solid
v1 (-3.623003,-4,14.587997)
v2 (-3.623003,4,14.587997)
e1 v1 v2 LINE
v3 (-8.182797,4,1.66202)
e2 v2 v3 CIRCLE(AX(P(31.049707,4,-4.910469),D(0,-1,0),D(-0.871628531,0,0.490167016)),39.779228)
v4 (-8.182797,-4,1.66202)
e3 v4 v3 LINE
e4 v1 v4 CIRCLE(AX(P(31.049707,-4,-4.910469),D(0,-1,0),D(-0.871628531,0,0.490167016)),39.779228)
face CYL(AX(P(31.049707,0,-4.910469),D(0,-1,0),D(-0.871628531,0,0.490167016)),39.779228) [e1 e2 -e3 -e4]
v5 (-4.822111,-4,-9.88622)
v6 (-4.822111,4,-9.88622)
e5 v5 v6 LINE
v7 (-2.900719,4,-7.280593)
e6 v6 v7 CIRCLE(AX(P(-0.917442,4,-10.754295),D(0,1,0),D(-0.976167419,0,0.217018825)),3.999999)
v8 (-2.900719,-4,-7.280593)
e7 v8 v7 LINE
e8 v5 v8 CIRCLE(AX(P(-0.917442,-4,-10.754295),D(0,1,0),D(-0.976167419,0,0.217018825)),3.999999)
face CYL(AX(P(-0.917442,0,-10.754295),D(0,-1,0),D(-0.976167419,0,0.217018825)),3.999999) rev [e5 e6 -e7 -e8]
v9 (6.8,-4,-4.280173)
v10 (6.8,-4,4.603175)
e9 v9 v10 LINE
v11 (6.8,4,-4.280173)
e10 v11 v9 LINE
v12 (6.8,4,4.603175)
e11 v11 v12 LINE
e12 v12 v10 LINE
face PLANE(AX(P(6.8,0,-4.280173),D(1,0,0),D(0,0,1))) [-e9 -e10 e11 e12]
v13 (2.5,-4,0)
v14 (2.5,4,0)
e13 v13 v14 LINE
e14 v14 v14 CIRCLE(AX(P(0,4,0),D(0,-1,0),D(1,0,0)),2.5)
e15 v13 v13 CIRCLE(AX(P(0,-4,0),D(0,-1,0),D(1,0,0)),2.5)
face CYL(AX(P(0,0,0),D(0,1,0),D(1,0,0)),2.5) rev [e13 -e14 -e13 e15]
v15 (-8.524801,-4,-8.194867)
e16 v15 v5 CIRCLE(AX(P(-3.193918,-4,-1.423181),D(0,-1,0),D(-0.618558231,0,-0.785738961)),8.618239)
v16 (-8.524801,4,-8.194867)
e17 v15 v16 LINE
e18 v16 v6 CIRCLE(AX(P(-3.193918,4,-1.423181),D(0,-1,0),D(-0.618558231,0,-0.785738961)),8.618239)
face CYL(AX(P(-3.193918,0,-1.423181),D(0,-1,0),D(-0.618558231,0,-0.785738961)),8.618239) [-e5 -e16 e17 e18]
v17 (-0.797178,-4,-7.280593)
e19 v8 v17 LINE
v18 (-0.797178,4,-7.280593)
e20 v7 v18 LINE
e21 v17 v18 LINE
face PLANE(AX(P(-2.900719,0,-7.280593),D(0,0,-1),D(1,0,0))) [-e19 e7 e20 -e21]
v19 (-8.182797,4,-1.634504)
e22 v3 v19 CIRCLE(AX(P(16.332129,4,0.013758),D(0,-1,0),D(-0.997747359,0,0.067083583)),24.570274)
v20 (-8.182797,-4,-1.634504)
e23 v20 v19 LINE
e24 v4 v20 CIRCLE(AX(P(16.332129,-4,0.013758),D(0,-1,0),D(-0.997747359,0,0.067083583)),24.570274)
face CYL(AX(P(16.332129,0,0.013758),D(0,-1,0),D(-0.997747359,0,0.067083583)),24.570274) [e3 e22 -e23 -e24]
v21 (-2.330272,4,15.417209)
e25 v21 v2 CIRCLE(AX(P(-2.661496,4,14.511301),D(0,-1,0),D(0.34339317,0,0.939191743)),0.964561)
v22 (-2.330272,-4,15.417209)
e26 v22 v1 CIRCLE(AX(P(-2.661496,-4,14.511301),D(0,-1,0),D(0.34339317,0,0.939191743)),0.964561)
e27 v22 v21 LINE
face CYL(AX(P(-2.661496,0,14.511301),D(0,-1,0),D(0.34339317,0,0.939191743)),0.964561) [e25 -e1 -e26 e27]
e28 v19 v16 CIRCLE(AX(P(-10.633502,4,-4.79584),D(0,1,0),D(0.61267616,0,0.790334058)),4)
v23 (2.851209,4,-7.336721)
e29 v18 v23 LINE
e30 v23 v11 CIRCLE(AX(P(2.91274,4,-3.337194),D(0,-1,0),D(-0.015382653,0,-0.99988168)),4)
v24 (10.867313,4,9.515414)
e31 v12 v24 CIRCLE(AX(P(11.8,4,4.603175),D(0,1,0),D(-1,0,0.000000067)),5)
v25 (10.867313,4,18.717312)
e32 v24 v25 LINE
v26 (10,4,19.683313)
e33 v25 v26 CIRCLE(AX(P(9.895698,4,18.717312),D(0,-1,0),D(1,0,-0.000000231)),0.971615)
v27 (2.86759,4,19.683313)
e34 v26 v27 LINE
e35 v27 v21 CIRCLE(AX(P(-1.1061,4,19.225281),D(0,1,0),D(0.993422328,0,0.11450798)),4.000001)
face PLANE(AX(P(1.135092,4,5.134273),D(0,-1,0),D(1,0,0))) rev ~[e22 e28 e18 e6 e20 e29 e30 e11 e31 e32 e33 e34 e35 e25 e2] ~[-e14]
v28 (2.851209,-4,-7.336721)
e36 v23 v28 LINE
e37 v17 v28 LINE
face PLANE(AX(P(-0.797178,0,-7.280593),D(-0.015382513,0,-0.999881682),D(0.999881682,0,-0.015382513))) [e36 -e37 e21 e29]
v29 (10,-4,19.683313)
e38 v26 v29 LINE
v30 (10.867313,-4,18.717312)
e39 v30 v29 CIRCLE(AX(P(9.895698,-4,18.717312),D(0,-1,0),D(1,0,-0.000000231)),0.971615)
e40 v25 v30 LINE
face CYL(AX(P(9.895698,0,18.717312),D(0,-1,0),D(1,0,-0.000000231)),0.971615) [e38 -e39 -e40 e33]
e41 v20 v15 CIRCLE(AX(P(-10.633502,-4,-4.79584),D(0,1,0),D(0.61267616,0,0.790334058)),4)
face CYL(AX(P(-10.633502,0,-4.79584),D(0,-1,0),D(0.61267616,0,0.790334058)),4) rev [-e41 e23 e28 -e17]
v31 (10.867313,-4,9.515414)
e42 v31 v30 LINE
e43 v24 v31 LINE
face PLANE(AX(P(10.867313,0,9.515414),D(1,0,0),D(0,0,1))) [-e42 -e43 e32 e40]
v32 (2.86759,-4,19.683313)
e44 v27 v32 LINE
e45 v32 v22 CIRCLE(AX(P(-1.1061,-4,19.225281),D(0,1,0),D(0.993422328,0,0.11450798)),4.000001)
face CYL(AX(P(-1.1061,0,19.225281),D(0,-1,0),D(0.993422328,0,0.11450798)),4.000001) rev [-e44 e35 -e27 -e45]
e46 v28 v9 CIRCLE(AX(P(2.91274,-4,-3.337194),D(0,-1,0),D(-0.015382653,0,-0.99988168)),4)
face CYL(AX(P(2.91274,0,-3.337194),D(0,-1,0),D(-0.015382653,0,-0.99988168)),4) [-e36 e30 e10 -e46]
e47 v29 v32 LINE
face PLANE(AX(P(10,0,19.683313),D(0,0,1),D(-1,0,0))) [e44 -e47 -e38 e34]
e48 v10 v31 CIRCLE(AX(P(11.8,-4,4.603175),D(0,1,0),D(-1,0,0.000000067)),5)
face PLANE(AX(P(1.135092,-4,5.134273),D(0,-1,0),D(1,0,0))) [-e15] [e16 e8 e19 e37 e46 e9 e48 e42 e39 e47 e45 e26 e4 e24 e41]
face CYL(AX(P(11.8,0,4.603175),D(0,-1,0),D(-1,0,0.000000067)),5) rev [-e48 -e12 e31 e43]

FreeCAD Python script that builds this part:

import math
import FreeCAD as App
import Part
import Sketcher

doc = App.newDocument("Part")
body = doc.addObject("PartDesign::Body", "Body")

# Sketch on XZ plane
sketch1 = body.newObject("Sketcher::SketchObject", "Sketch")
sketch1.AttachmentSupport = (doc.getObject("XZ_Plane"), [""])
sketch1.MapMode = "FlatFace"
sketch1.addGeometry(Part.LineSegment(App.Vector(-0.797178, -7.280593, 0), App.Vector(2.851209, -7.336721, 0)), False)
sketch1.addGeometry(Part.ArcOfCircle(Part.Circle(App.Vector(2.91274, -3.337194, 0), App.Vector(0, 0, 1), 4), math.radians(-90.881396), math.radians(-13.635527)), False)
sketch1.addGeometry(Part.LineSegment(App.Vector(6.8, -4.280173, 0), App.Vector(6.8, 4.603175, 0)), False)
sketch1.addGeometry(Part.ArcOfCircle(Part.Circle(App.Vector(11.8, 4.603175, 0), App.Vector(0, 0, 1), 5), math.radians(100.75078), math.radians(179.999996)), False)
sketch1.addGeometry(Part.LineSegment(App.Vector(10.867313, 9.515414, 0), App.Vector(10.867313, 18.717312, 0)), False)
sketch1.addGeometry(Part.ArcOfCircle(Part.Circle(App.Vector(9.895698, 18.717312, 0), App.Vector(0, 0, 1), 0.971615), math.radians(-0.000013), math.radians(83.837453)), False)
sketch1.addGeometry(Part.LineSegment(App.Vector(10, 19.683313, 0), App.Vector(2.86759, 19.683313, 0)), False)
sketch1.addGeometry(Part.ArcOfCircle(Part.Circle(App.Vector(-1.1061, 19.225281, 0), App.Vector(0, 0, 1), 4.000001), math.radians(-107.820914), math.radians(6.575247)), False)
sketch1.addGeometry(Part.ArcOfCircle(Part.Circle(App.Vector(-2.661496, 14.511301, 0), App.Vector(0, 0, 1), 0.964561), math.radians(69.91626), math.radians(175.439377)), False)
sketch1.addGeometry(Part.ArcOfCircle(Part.Circle(App.Vector(31.049707, -4.910469, 0), App.Vector(0, 0, 1), 39.779228), math.radians(150.64844), math.radians(170.489745)), False)
sketch1.addGeometry(Part.ArcOfCircle(Part.Circle(App.Vector(16.332129, 0.013758, 0), App.Vector(0, 0, 1), 24.570274), math.radians(176.153505), math.radians(183.846495)), False)
sketch1.addGeometry(Part.ArcOfCircle(Part.Circle(App.Vector(-10.633502, -4.79584, 0), App.Vector(0, 0, 1), 4), math.radians(-58.18521), math.radians(52.216741)), False)
sketch1.addGeometry(Part.ArcOfCircle(Part.Circle(App.Vector(-3.193918, -1.423181, 0), App.Vector(0, 0, 1), 8.618239), math.radians(-128.210925), math.radians(-100.89)), False)
sketch1.addGeometry(Part.ArcOfCircle(Part.Circle(App.Vector(-0.917442, -10.754295, 0), App.Vector(0, 0, 1), 3.999999), math.radians(119.723792), math.radians(167.466006)), False)
sketch1.addGeometry(Part.LineSegment(App.Vector(-2.900719, -7.280593, 0), App.Vector(-0.797178, -7.280593, 0)), False)
sketch1.addGeometry(Part.Circle(App.Vector(0, 0, 0), App.Vector(0, 0, 1), 2.5), False)
sketch1.addConstraint(Sketcher.Constraint("Tangent", 0, 2, 1, 1))
sketch1.addConstraint(Sketcher.Constraint("Coincident", 1, 2, 2, 1))
sketch1.addConstraint(Sketcher.Constraint("Tangent", 2, 2, 3, 2))
sketch1.addConstraint(Sketcher.Constraint("Coincident", 3, 1, 4, 1))
sketch1.addConstraint(Sketcher.Constraint("Tangent", 4, 2, 5, 1))
sketch1.addConstraint(Sketcher.Constraint("Coincident", 5, 2, 6, 1))
sketch1.addConstraint(Sketcher.Constraint("Coincident", 6, 2, 7, 2))
sketch1.addConstraint(Sketcher.Constraint("Coincident", 7, 1, 8, 1))
sketch1.addConstraint(Sketcher.Constraint("Coincident", 8, 2, 9, 1))
sketch1.addConstraint(Sketcher.Constraint("Coincident", 9, 2, 10, 1))
sketch1.addConstraint(Sketcher.Constraint("Coincident", 10, 2, 11, 2))
sketch1.addConstraint(Sketcher.Constraint("Coincident", 11, 1, 12, 1))
sketch1.addConstraint(Sketcher.Constraint("Coincident", 12, 2, 13, 2))
sketch1.addConstraint(Sketcher.Constraint("Coincident", 13, 1, 14, 1))
sketch1.addConstraint(Sketcher.Constraint("Coincident", 14, 2, 0, 1))
sketch1.addConstraint(Sketcher.Constraint("Vertical", 2))
sketch1.addConstraint(Sketcher.Constraint("Vertical", 4))
sketch1.addConstraint(Sketcher.Constraint("Horizontal", 6))
sketch1.addConstraint(Sketcher.Constraint("Horizontal", 14))
sketch1.addConstraint(Sketcher.Constraint("Coincident", 15, 3, -1, 1))
sketch1.addConstraint(Sketcher.Constraint("Equal", 1, 7))
sketch1.addConstraint(Sketcher.Constraint("Equal", 7, 11))
sketch1.addConstraint(Sketcher.Constraint("Equal", 11, 13))
sketch1.addConstraint(Sketcher.Constraint("Vertical", 9, 2, 10, 2))
sketch1.addConstraint(Sketcher.Constraint("Diameter", 15, 5.0))
sketch1.addConstraint(Sketcher.Constraint("Radius", 1, 4.0))
sketch1.addConstraint(Sketcher.Constraint("Radius", 3, 5.0))
sketch1.addConstraint(Sketcher.Constraint("DistanceX", -1, 1, 5, 2, 10.0))
sketch1.addConstraint(Sketcher.Constraint("DistanceX", -1, 1, 3, 3, 11.8))
sketch1.addConstraint(Sketcher.Constraint("Radius", 8, 0.964561))
sketch1.addConstraint(Sketcher.Constraint("Radius", 9, 39.779228))
sketch1.addConstraint(Sketcher.Constraint("Radius", 12, 8.618239))
sketch1.addConstraint(Sketcher.Constraint("Radius", 5, 0.971615))
sketch1.addConstraint(Sketcher.Constraint("Radius", 10, 24.570274))
sketch1.addConstraint(Sketcher.Constraint("DistanceY", 5, 3, 5, 2, 0.966001))
sketch1.addConstraint(Sketcher.Constraint("DistanceX", 6, 2, 6, 1, 7.13241))
sketch1.addConstraint(Sketcher.Constraint("DistanceX", 14, 1, 14, 2, 2.103541))
sketch1.addConstraint(Sketcher.Constraint("DistanceX", 7, 3, -1, 1, 1.1061))
sketch1.addConstraint(Sketcher.Constraint("DistanceY", -1, 1, 8, 3, 14.511301))
sketch1.addConstraint(Sketcher.Constraint("DistanceX", 11, 3, -1, 1, 10.633502))
sketch1.addConstraint(Sketcher.Constraint("DistanceX", 11, 1, -1, 1, 8.524801))
sketch1.addConstraint(Sketcher.Constraint("DistanceY", 11, 3, 10, 3, 4.809598))
sketch1.addConstraint(Sketcher.Constraint("DistanceY", 13, 3, 1, 3, 7.417101))
sketch1.addConstraint(Sketcher.Constraint("DistanceY", 3, 1, 5, 3, 9.201898))
sketch1.addConstraint(Sketcher.Constraint("DistanceX", 8, 2, 5, 3, 13.518701))
sketch1.addConstraint(Sketcher.Constraint("DistanceY", 12, 3, 9, 2, 3.085201))
sketch1.addConstraint(Sketcher.Constraint("DistanceY", 12, 2, 0, 2, 2.549499))
sketch1.addConstraint(Sketcher.Constraint("DistanceX", 12, 3, 13, 1, 0.293199))
sketch1.addConstraint(Sketcher.Constraint("DistanceY", 14, 2, 1, 3, 3.943399))
sketch1.addConstraint(Sketcher.Constraint("Distance", 0, 3.648819))
sketch1.addConstraint(Sketcher.Constraint("DistanceY", 2, 1, 2, 2, 8.883348))
sketch1.addConstraint(Sketcher.Constraint("DistanceX", -1, 1, 1, 3, 2.91274))
sketch1.addConstraint(Sketcher.Constraint("DistanceY", -1, 1, 7, 3, 19.225281))
sketch1.addConstraint(Sketcher.Constraint("DistanceY", 9, 3, -1, 1, 4.910469))
pad1 = body.newObject("PartDesign::Pad", "Pad")
pad1.Profile = sketch1
pad1.Length = 8
pad1.Midplane = True

doc.recompute()
